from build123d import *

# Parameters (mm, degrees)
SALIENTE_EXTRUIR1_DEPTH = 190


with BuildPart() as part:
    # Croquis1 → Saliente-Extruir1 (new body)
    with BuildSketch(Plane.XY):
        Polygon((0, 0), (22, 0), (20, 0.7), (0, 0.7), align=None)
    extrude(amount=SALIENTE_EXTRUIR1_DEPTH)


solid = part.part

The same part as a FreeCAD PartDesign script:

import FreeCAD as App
import Part
import Sketcher
from FreeCAD import Vector
Q = App.Units.Quantity

doc = App.newDocument("Part")
body = doc.addObject("PartDesign::Body", "Body")

# Sketch on XY plane
sketch1 = doc.addObject("Sketcher::SketchObject", "Sketch")
body.addObject(sketch1)
sketch1.AttachmentSupport = (doc.XY_Plane, [""])
sketch1.MapMode = "FlatFace"
sketch1.addGeometry(Part.LineSegment(Vector(0, 0, 0), Vector(22, 0, 0)), False)
sketch1.addGeometry(Part.LineSegment(Vector(22, 0, 0), Vector(20, 0.7, 0)), False)
sketch1.addGeometry(Part.LineSegment(Vector(20, 0.7, 0), Vector(0, 0.7, 0)), False)
sketch1.addGeometry(Part.LineSegment(Vector(0, 0.7, 0), Vector(0, 0, 0)), False)
sketch1.addConstraint(Sketcher.Constraint("Coincident", 0, 2, 1, 1))
sketch1.addConstraint(Sketcher.Constraint("Coincident", 1, 2, 2, 1))
sketch1.addConstraint(Sketcher.Constraint("Coincident", 2, 2, 3, 1))
sketch1.addConstraint(Sketcher.Constraint("Coincident", 3, 2, 0, 1))
sketch1.addConstraint(Sketcher.Constraint("Horizontal", 0))
sketch1.addConstraint(Sketcher.Constraint("Horizontal", 2))
sketch1.addConstraint(Sketcher.Constraint("Vertical", 3))
sketch1.addConstraint(Sketcher.Constraint("Coincident", 3, 2, -1, 1))
sketch1.addConstraint(Sketcher.Constraint("DistanceX", 0, 1, 0, 2, Q("22 mm")))
sketch1.addConstraint(Sketcher.Constraint("DistanceX", 2, 2, 2, 1, Q("20 mm")))
sketch1.addConstraint(Sketcher.Constraint("DistanceY", 3, 2, 3, 1, Q("0.7 mm")))
pad1 = doc.addObject("PartDesign::Pad", "Pad")
body.addObject(pad1)
pad1.Profile = sketch1
pad1.Length = 190

doc.recompute()
